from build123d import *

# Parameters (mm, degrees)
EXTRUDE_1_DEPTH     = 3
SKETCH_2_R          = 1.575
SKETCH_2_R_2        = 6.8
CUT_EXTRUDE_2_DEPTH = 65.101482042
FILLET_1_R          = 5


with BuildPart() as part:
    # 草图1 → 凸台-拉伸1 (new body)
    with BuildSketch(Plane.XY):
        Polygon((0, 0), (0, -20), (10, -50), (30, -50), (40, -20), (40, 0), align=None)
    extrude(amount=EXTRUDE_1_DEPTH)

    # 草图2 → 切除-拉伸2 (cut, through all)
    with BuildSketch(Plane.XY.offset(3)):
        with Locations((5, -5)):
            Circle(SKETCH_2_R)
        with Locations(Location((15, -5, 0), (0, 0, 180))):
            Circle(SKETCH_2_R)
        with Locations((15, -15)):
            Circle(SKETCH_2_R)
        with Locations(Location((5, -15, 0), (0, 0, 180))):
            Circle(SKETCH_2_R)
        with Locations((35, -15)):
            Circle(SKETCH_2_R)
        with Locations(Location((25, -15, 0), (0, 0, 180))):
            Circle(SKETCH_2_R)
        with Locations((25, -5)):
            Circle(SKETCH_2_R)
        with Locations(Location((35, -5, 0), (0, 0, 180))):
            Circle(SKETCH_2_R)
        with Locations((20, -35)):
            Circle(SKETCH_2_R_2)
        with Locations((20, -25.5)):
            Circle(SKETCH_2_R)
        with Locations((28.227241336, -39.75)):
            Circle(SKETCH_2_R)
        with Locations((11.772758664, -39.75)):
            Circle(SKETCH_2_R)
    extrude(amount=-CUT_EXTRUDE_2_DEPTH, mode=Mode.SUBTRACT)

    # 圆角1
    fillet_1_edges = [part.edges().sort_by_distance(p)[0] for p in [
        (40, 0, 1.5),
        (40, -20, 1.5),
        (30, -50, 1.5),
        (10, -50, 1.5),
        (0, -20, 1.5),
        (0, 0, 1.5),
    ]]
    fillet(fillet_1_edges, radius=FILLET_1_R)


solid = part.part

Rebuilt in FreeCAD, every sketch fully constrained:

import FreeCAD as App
import Part
import Sketcher

V = App.Vector


def edges_at(feature, points):
    """Names of the edges that pass closest to the given points."""
    edges = feature.Shape.Edges
    near = lambda p: min(range(len(edges)), key=lambda i: edges[i].distToShape(Part.Vertex(*p))[0])
    return sorted({f"Edge{near(p) + 1}" for p in points})

doc = App.newDocument("Part")
params = doc.addObject("Spreadsheet::Sheet", "Params")
for row, (alias, value) in enumerate([
    ("sketch1_width", "20 mm"),
    ("sketch1_width2", "40 mm"),
    ("pad1_length", "3 mm"),
    ("sketch2_diameter", "13.6 mm"),
    ("sketch2_diameter2", "3.15 mm"),
    ("fillet_radius", "5 mm"),
], start=1):
    params.set(f"A{row}", alias)
    params.set(f"B{row}", "=" + value)
    params.setAlias(f"B{row}", alias)

body = doc.addObject("PartDesign::Body", "Body")

sketch1 = body.newObject("Sketcher::SketchObject", "Sketch")
sketch1.AttachmentSupport = (doc.getObject("XY_Plane"), [""])
sketch1.MapMode = "FlatFace"
sketch1.addGeometry(Part.LineSegment(V(0, 0, 0), V(0, -20, 0)), False)
sketch1.addGeometry(Part.LineSegment(V(0, -20, 0), V(10, -50, 0)), False)
sketch1.addGeometry(Part.LineSegment(V(10, -50, 0), V(30, -50, 0)), False)
sketch1.addGeometry(Part.LineSegment(V(30, -50, 0), V(40, -20, 0)), False)
sketch1.addGeometry(Part.LineSegment(V(40, -20, 0), V(40, 0, 0)), False)
sketch1.addGeometry(Part.LineSegment(V(40, 0, 0), V(0, 0, 0)), False)
sketch1.addConstraint(Sketcher.Constraint("Coincident", 0, 2, 1, 1))
sketch1.addConstraint(Sketcher.Constraint("Coincident", 1, 2, 2, 1))
sketch1.addConstraint(Sketcher.Constraint("Coincident", 2, 2, 3, 1))
sketch1.addConstraint(Sketcher.Constraint("Coincident", 3, 2, 4, 1))
sketch1.addConstraint(Sketcher.Constraint("Coincident", 4, 2, 5, 1))
sketch1.addConstraint(Sketcher.Constraint("Coincident", 5, 2, 0, 1))
sketch1.addConstraint(Sketcher.Constraint("Vertical", 0))
sketch1.addConstraint(Sketcher.Constraint("Horizontal", 2))
sketch1.addConstraint(Sketcher.Constraint("Vertical", 4))
sketch1.addConstraint(Sketcher.Constraint("Horizontal", 5))
sketch1.addConstraint(Sketcher.Constraint("Coincident", 5, 2, -1, 1))
sketch1.addConstraint(Sketcher.Constraint("Horizontal", 0, 2, 3, 2))
sketch1.addConstraint(Sketcher.Constraint("Equal", 2, 0))
sketch1.addConstraint(Sketcher.Constraint("Equal", 1, 3))
sketch1.addConstraint(Sketcher.Constraint("DistanceX", 2, 1, 2, 2, 20.0))
sketch1.addConstraint(Sketcher.Constraint("DistanceX", 5, 2, 5, 1, 40.0))
sketch1.addConstraint(Sketcher.Constraint("DistanceY", 1, 2, -1, 1, 50.0))
sketch1.setExpression("Constraints[14]", "Params.sketch1_width")
sketch1.setExpression("Constraints[15]", "Params.sketch1_width2")
pad1 = body.newObject("PartDesign::Pad", "Pad")
pad1.Profile = sketch1
pad1.setExpression("Length", "Params.pad1_length")

sketch2 = body.newObject("Sketcher::SketchObject", "Sketch001")
sketch2.AttachmentSupport = (doc.getObject("XY_Plane"), [""])
sketch2.MapMode = "FlatFace"
sketch2.AttachmentOffset = App.Placement(V(0, 0, 3), App.Rotation())
sketch2.addGeometry(Part.Circle(V(5, -5, 0), V(0, 0, 1), 1.6), False)
sketch2.addGeometry(Part.Circle(V(15, -5, 0), V(0, 0, 1), 1.6), False)
sketch2.addGeometry(Part.Circle(V(15, -15, 0), V(0, 0, 1), 1.6), False)
sketch2.addGeometry(Part.Circle(V(5, -15, 0), V(0, 0, 1), 1.6), False)
sketch2.addGeometry(Part.Circle(V(35, -15, 0), V(0, 0, 1), 1.6), False)
sketch2.addGeometry(Part.Circle(V(25, -15, 0), V(0, 0, 1), 1.6), False)
sketch2.addGeometry(Part.Circle(V(25, -5, 0), V(0, 0, 1), 1.6), False)
sketch2.addGeometry(Part.Circle(V(35, -5, 0), V(0, 0, 1), 1.6), False)
sketch2.addGeometry(Part.Circle(V(20, -35, 0), V(0, 0, 1), 6.8), False)
sketch2.addGeometry(Part.Circle(V(20, -25.5, 0), V(0, 0, 1), 1.6), False)
sketch2.addGeometry(Part.Circle(V(28.2, -39.8, 0), V(0, 0, 1), 1.6), False)
sketch2.addGeometry(Part.Circle(V(11.8, -39.8, 0), V(0, 0, 1), 1.6), False)
sketch2.addConstraint(Sketcher.Constraint("Equal", 0, 1))
sketch2.addConstraint(Sketcher.Constraint("Equal", 1, 2))
sketch2.addConstraint(Sketcher.Constraint("Equal", 2, 3))
sketch2.addConstraint(Sketcher.Constraint("Equal", 3, 4))
sketch2.addConstraint(Sketcher.Constraint("Equal", 4, 5))
sketch2.addConstraint(Sketcher.Constraint("Equal", 5, 6))
sketch2.addConstraint(Sketcher.Constraint("Equal", 6, 7))
sketch2.addConstraint(Sketcher.Constraint("Equal", 7, 9))
sketch2.addConstraint(Sketcher.Constraint("Equal", 9, 10))
sketch2.addConstraint(Sketcher.Constraint("Equal", 10, 11))
sketch2.addConstraint(Sketcher.Constraint("Horizontal", 0, 3, 1, 3))
sketch2.addConstraint(Sketcher.Constraint("Horizontal", 2, 3, 3, 3))
sketch2.addConstraint(Sketcher.Constraint("Horizontal", 3, 3, 4, 3))
sketch2.addConstraint(Sketcher.Constraint("Horizontal", 4, 3, 5, 3))
sketch2.addConstraint(Sketcher.Constraint("Horizontal", 1, 3, 6, 3))
sketch2.addConstraint(Sketcher.Constraint("Horizontal", 6, 3, 7, 3))
sketch2.addConstraint(Sketcher.Constraint("Horizontal", 10, 3, 11, 3))
sketch2.addConstraint(Sketcher.Constraint("Vertical", 1, 3, 2, 3))
sketch2.addConstraint(Sketcher.Constraint("Vertical", 0, 3, 3, 3))
sketch2.addConstraint(Sketcher.Constraint("Vertical", 5, 3, 6, 3))
sketch2.addConstraint(Sketcher.Constraint("Vertical", 4, 3, 7, 3))
sketch2.addConstraint(Sketcher.Constraint("Vertical", 8, 3, 9, 3))
sketch2.addConstraint(Sketcher.Constraint("Diameter", 8, 13.6))
sketch2.addConstraint(Sketcher.Constraint("Diameter", 0, 3.15))
sketch2.addConstraint(Sketcher.Constraint("DistanceX", -1, 1, 0, 3, 5.0))
sketch2.addConstraint(Sketcher.Constraint("DistanceY", 0, 3, -1, 1, 5.0))
sketch2.addConstraint(Sketcher.Constraint("DistanceX", -1, 1, 1, 3, 15.0))
sketch2.addConstraint(Sketcher.Constraint("DistanceY", 2, 3, -1, 1, 15.0))
sketch2.addConstraint(Sketcher.Constraint("DistanceX", -1, 1, 4, 3, 35.0))
sketch2.addConstraint(Sketcher.Constraint("DistanceX", -1, 1, 5, 3, 25.0))
sketch2.addConstraint(Sketcher.Constraint("DistanceX", -1, 1, 8, 3, 20.0))
sketch2.addConstraint(Sketcher.Constraint("DistanceY", 8, 3, -1, 1, 35.0))
sketch2.addConstraint(Sketcher.Constraint("DistanceY", 9, 3, -1, 1, 25.5))
sketch2.addConstraint(Sketcher.Constraint("DistanceY", 10, 3, -1, 1, 39.75))
sketch2.addConstraint(Sketcher.Constraint("DistanceX", -1, 1, 10, 3, 28.227241))
sketch2.addConstraint(Sketcher.Constraint("DistanceX", -1, 1, 11, 3, 11.772759))
sketch2.setExpression("Constraints[22]", "Params.sketch2_diameter")
sketch2.setExpression("Constraints[23]", "Params.sketch2_diameter2")
pocket1 = body.newObject("PartDesign::Pocket", "Pocket")
pocket1.Profile = sketch2
pocket1.Type = "ThroughAll"
doc.recompute()

fillet = body.newObject("PartDesign::Fillet", "Fillet")
fillet.Base = (pocket1, edges_at(pocket1, [
    (40, 0, 1.5),
    (40, -20, 1.5),
    (30, -50, 1.5),
    (10, -50, 1.5),
    (0, -20, 1.5),
    (0, 0, 1.5),
]))
fillet.setExpression("Radius", "Params.fillet_radius")

doc.recompute()
